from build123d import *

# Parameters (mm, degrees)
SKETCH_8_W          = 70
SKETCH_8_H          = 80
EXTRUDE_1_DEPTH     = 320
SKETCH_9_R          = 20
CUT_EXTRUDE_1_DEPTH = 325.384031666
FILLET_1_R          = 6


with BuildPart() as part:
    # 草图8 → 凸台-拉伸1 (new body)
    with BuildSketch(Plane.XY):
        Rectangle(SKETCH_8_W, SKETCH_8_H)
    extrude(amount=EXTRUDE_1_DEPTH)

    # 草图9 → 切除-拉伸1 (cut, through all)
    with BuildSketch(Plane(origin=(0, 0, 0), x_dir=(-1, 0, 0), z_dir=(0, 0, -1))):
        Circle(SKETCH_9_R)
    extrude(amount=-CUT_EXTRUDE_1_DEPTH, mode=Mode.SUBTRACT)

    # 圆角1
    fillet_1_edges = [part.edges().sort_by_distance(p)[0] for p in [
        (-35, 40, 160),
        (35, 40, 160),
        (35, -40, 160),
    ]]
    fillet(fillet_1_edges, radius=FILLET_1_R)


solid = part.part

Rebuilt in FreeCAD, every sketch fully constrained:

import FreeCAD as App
import Part
import Sketcher
from FreeCAD import Vector
Q = App.Units.Quantity


def edges_at(feature, points):
    """Names of the edges that pass closest to the given points."""
    edges = feature.Shape.Edges
    near = lambda p: min(range(len(edges)), key=lambda i: edges[i].distToShape(Part.Vertex(*p))[0])
    return sorted({f"Edge{near(p) + 1}" for p in points})

doc = App.newDocument("Part")
body = doc.addObject("PartDesign::Body", "Body")

sketch1 = body.newObject("Sketcher::SketchObject", "Sketch")
sketch1.AttachmentSupport = (doc.getObject("XY_Plane"), [""])
sketch1.MapMode = "FlatFace"
sketch1.addGeometry([
    Part.LineSegment(Vector(-35, 40, 0), Vector(-35, -40, 0)),
    Part.LineSegment(Vector(-35, -40, 0), Vector(35, -40, 0)),
    Part.LineSegment(Vector(35, -40, 0), Vector(35, 40, 0)),
    Part.LineSegment(Vector(35, 40, 0), Vector(-35, 40, 0)),
], False)
sketch1.addConstraint([
    Sketcher.Constraint("Coincident", 0, 2, 1, 1),
    Sketcher.Constraint("Coincident", 1, 2, 2, 1),
    Sketcher.Constraint("Coincident", 2, 2, 3, 1),
    Sketcher.Constraint("Coincident", 3, 2, 0, 1),
    Sketcher.Constraint("Vertical", 0),
    Sketcher.Constraint("Horizontal", 1),
    Sketcher.Constraint("Vertical", 2),
    Sketcher.Constraint("Horizontal", 3),
    Sketcher.Constraint("Symmetric", 0, 2, 2, 2, -1, 1),
    Sketcher.Constraint("DistanceX", 1, 1, 1, 2, Q("70 mm")),
    Sketcher.Constraint("DistanceY", 0, 2, 0, 1, Q("80 mm")),
])
pad1 = body.newObject("PartDesign::Pad", "Pad")
pad1.Profile = sketch1
pad1.Length = 320

sketch2 = body.newObject("Sketcher::SketchObject", "Sketch001")
sketch2.AttachmentSupport = (doc.getObject("XY_Plane"), [""])
sketch2.MapMode = "FlatFace"
sketch2.addGeometry(Part.Circle(Vector(0, 0, 0), Vector(0, 0, 1), 20), False)
sketch2.addConstraint([
    Sketcher.Constraint("Coincident", 0, 3, -1, 1),
    Sketcher.Constraint("Diameter", 0, Q("40 mm")),
])
pocket1 = body.newObject("PartDesign::Pocket", "Pocket")
pocket1.Profile = sketch2
pocket1.Type = "ThroughAll"
pocket1.Reversed = True
doc.recompute()

fillet = body.newObject("PartDesign::Fillet", "Fillet")
fillet.Base = (pocket1, edges_at(pocket1, [(-35, 40, 160), (35, 40, 160), (35, -40, 160)]))
fillet.Radius = 6

doc.recompute()
